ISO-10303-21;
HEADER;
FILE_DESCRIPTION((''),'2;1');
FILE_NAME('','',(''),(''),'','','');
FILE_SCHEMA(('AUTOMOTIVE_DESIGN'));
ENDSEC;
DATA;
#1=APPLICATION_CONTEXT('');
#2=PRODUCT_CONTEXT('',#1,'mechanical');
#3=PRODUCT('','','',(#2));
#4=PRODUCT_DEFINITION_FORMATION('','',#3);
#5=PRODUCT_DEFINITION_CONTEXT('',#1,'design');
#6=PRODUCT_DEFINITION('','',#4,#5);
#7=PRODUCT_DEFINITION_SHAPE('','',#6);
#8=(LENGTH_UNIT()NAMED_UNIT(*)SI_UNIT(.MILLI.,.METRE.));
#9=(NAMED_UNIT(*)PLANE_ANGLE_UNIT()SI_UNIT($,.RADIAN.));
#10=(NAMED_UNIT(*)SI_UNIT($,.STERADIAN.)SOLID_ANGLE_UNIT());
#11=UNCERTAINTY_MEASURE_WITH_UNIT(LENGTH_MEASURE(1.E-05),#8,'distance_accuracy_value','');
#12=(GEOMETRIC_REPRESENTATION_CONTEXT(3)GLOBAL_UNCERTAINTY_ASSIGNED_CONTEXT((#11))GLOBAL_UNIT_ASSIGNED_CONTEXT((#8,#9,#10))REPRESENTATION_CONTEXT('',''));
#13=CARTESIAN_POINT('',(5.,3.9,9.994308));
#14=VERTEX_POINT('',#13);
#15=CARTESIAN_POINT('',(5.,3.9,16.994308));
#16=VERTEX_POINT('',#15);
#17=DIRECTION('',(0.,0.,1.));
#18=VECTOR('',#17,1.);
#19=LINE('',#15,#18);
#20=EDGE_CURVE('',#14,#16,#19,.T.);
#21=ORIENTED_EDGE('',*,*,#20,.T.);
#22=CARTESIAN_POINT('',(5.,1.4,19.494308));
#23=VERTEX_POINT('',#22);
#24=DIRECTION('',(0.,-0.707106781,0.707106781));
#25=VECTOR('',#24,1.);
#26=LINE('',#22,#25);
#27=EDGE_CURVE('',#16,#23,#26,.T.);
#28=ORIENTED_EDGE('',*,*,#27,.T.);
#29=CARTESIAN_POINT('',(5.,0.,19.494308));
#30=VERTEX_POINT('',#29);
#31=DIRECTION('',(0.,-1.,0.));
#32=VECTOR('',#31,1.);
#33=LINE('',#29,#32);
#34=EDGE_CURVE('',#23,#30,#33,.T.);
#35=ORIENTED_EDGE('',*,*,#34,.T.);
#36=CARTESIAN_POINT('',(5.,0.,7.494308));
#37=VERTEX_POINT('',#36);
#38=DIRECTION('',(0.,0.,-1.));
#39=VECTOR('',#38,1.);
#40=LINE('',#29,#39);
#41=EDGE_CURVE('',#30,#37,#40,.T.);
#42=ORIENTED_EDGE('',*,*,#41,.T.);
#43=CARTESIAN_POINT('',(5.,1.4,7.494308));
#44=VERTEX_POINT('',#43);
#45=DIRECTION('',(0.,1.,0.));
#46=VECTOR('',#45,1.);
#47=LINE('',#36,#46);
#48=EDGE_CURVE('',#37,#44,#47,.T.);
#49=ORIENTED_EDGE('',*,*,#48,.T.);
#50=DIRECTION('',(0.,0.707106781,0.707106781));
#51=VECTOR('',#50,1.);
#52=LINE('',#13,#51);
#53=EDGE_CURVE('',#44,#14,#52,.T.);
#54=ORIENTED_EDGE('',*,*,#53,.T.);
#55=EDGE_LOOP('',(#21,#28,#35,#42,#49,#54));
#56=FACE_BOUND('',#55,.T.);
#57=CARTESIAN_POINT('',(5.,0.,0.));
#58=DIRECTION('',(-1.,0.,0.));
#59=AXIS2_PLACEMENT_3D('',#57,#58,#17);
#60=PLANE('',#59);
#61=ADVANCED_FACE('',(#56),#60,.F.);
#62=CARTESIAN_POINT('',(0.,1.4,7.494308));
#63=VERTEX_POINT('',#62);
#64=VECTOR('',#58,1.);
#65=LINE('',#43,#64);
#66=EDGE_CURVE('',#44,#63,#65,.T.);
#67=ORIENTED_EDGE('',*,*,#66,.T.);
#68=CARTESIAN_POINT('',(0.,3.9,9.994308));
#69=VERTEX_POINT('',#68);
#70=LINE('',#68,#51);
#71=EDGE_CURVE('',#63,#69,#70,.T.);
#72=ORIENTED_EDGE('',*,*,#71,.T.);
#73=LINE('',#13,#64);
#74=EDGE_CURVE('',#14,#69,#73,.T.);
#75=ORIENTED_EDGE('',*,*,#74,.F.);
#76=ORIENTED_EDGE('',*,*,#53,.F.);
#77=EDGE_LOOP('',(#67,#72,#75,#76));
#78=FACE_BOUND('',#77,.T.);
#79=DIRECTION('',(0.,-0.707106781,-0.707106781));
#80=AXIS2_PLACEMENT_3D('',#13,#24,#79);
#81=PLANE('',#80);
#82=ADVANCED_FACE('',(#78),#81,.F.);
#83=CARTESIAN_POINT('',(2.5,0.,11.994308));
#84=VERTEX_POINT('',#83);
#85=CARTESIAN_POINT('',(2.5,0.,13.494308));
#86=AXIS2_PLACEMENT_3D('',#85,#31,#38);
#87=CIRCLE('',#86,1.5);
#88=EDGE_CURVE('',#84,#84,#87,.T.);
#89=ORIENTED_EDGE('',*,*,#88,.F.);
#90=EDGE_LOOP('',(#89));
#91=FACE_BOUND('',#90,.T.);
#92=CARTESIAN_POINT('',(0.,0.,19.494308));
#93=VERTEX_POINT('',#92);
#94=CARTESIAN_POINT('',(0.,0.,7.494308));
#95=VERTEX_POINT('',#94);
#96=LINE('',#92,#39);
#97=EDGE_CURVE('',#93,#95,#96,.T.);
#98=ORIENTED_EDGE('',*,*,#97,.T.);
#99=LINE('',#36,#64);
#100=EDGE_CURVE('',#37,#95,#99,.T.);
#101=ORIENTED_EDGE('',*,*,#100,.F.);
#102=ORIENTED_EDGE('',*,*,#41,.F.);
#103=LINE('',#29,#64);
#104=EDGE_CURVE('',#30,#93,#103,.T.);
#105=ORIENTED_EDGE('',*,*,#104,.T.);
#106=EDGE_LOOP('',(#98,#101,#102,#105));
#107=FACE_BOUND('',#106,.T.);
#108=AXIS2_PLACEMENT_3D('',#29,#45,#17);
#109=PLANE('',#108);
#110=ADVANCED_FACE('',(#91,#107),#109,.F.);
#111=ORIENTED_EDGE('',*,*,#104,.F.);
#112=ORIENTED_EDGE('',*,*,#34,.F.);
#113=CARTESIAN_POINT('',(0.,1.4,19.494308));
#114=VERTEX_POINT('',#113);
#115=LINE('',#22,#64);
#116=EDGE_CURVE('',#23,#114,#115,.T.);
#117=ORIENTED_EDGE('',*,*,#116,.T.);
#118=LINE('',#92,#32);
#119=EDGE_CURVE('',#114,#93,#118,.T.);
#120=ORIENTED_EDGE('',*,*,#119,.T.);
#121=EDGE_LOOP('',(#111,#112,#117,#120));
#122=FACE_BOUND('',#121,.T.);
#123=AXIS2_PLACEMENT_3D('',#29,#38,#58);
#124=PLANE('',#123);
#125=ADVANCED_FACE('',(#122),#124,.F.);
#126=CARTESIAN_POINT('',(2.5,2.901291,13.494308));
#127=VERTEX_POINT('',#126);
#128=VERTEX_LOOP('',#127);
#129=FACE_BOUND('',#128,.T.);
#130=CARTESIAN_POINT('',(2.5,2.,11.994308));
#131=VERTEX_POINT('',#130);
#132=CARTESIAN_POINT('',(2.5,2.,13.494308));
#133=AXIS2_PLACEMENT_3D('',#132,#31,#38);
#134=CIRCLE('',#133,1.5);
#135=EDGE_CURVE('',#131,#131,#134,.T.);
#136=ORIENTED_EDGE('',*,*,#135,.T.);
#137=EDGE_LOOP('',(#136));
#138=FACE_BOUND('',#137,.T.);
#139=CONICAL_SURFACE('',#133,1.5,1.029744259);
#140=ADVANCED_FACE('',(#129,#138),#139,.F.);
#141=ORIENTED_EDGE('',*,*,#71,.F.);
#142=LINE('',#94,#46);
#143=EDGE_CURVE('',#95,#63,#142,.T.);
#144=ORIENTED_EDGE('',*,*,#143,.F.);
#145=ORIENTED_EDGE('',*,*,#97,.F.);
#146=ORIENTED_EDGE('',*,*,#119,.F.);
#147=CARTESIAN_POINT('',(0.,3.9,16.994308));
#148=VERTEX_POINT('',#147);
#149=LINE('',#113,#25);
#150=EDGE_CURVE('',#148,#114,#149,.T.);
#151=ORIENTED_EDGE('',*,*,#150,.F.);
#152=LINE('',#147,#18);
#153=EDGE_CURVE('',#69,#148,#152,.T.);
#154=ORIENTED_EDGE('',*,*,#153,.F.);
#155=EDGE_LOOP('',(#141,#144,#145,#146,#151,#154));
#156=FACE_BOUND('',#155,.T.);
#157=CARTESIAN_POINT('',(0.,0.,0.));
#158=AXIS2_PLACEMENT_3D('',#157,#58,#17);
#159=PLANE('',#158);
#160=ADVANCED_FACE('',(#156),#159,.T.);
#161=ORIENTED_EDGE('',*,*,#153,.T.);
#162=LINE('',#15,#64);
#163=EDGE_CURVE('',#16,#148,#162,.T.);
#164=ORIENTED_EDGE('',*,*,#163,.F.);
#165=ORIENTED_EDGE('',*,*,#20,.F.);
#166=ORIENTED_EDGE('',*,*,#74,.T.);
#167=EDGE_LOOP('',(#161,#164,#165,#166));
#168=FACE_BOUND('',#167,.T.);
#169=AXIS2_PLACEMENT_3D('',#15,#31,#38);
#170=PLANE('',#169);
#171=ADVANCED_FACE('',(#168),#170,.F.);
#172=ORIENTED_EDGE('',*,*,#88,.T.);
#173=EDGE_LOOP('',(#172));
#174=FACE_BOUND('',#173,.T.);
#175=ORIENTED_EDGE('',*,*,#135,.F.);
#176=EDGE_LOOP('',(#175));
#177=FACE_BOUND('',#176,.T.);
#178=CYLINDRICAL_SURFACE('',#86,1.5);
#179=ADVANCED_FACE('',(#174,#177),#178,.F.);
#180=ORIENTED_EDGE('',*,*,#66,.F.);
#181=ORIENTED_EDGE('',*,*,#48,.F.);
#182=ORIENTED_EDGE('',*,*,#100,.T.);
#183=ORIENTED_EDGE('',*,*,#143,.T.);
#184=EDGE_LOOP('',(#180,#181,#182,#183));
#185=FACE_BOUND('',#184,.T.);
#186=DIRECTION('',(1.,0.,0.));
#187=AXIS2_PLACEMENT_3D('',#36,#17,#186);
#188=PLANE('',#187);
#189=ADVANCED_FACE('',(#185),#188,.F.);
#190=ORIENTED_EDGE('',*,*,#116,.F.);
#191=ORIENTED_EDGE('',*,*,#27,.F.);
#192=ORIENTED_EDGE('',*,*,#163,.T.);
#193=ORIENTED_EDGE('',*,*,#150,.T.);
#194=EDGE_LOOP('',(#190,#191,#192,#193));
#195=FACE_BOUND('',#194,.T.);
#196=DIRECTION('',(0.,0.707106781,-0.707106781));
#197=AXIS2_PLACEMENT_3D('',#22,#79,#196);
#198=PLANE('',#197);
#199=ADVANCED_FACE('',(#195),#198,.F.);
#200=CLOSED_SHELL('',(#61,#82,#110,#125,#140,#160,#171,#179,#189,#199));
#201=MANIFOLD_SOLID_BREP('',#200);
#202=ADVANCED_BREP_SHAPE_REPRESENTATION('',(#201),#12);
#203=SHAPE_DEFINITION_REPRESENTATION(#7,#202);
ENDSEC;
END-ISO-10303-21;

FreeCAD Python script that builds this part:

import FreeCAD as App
import Part
import Sketcher

V = App.Vector
Q = App.Units.Quantity

doc = App.newDocument("Part")
params = doc.addObject("Spreadsheet::Sheet", "Params")
for row, (alias, value) in enumerate([
    ("sketch1_height", "12 mm"),
    ("sketch1_height2", "7 mm"),
    ("sketch1_width", "1.4 mm"),
    ("pad1_length", "5 mm"),
    ("sketch2_diameter", "3 mm"),
    ("hole_diameter", "3 mm"),
    ("hole_depth", "2 mm"),
], start=1):
    params.set(f"A{row}", alias)
    params.set(f"B{row}", "=" + value)
    params.setAlias(f"B{row}", alias)

body = doc.addObject("PartDesign::Body", "Body")

# Sketch on YZ plane
sketch1 = doc.addObject("Sketcher::SketchObject", "Sketch")
body.addObject(sketch1)
sketch1.AttachmentSupport = (doc.YZ_Plane, [""])
sketch1.MapMode = "FlatFace"
sketch1.addGeometry(Part.LineSegment(V(0, 19.5, 0), V(0, 7.5, 0)), False)
sketch1.addGeometry(Part.LineSegment(V(0, 7.5, 0), V(1.4, 7.5, 0)), False)
sketch1.addGeometry(Part.LineSegment(V(1.4, 7.5, 0), V(3.9, 10, 0)), False)
sketch1.addGeometry(Part.LineSegment(V(3.9, 10, 0), V(3.9, 17, 0)), False)
sketch1.addGeometry(Part.LineSegment(V(3.9, 17, 0), V(1.4, 19.5, 0)), False)
sketch1.addGeometry(Part.LineSegment(V(1.4, 19.5, 0), V(0, 19.5, 0)), False)
sketch1.addConstraint(Sketcher.Constraint("Coincident", 0, 2, 1, 1))
sketch1.addConstraint(Sketcher.Constraint("Coincident", 1, 2, 2, 1))
sketch1.addConstraint(Sketcher.Constraint("Coincident", 2, 2, 3, 1))
sketch1.addConstraint(Sketcher.Constraint("Coincident", 3, 2, 4, 1))
sketch1.addConstraint(Sketcher.Constraint("Coincident", 4, 2, 5, 1))
sketch1.addConstraint(Sketcher.Constraint("Coincident", 5, 2, 0, 1))
sketch1.addConstraint(Sketcher.Constraint("Vertical", 0))
sketch1.addConstraint(Sketcher.Constraint("Horizontal", 1))
sketch1.addConstraint(Sketcher.Constraint("Vertical", 3))
sketch1.addConstraint(Sketcher.Constraint("Horizontal", 5))
sketch1.addConstraint(Sketcher.Constraint("PointOnObject", 0, 2, -2))
sketch1.addConstraint(Sketcher.Constraint("Perpendicular", 2, 4))
sketch1.addConstraint(Sketcher.Constraint("Vertical", 1, 2, 4, 2))
sketch1.addConstraint(Sketcher.Constraint("Equal", 2, 4))
sketch1.addConstraint(Sketcher.Constraint("DistanceY", 0, 2, 0, 1, Q("12 mm")))
sketch1.addConstraint(Sketcher.Constraint("DistanceY", 3, 1, 3, 2, Q("7 mm")))
sketch1.addConstraint(Sketcher.Constraint("DistanceX", 1, 1, 1, 2, Q("1.4 mm")))
sketch1.addConstraint(Sketcher.Constraint("DistanceY", -1, 1, 0, 2, Q("7.494308 mm")))
sketch1.setExpression("Constraints[14]", "Params.sketch1_height")
sketch1.setExpression("Constraints[15]", "Params.sketch1_height2")
sketch1.setExpression("Constraints[16]", "Params.sketch1_width")
pad1 = doc.addObject("PartDesign::Pad", "Pad")
body.addObject(pad1)
pad1.Profile = sketch1
pad1.setExpression("Length", "Params.pad1_length")

# Sketch on XZ plane
sketch2 = doc.addObject("Sketcher::SketchObject", "Sketch001")
body.addObject(sketch2)
sketch2.AttachmentSupport = (doc.XZ_Plane, [""])
sketch2.MapMode = "FlatFace"
sketch2.addGeometry(Part.Circle(V(2.5, 13.5, 0), V(0, 0, 1), 1.5), False)
sketch2.addConstraint(Sketcher.Constraint("Diameter", 0, Q("3 mm")))
sketch2.addConstraint(Sketcher.Constraint("DistanceX", -1, 1, 0, 3, Q("2.5 mm")))
sketch2.addConstraint(Sketcher.Constraint("DistanceY", -1, 1, 0, 3, Q("13.494308 mm")))
sketch2.setExpression("Constraints[0]", "Params.sketch2_diameter")
doc.recompute()
hole = doc.addObject("PartDesign::Hole", "Hole")
body.addObject(hole)
hole.Profile = sketch2
hole.ThreadType = "None"
hole.setExpression("Diameter", "Params.hole_diameter")
hole.DepthType = "Dimension"
hole.setExpression("Depth", "Params.hole_depth")
hole.DrillPoint = "Angled"
hole.DrillPointAngle = 118

doc.recompute()
